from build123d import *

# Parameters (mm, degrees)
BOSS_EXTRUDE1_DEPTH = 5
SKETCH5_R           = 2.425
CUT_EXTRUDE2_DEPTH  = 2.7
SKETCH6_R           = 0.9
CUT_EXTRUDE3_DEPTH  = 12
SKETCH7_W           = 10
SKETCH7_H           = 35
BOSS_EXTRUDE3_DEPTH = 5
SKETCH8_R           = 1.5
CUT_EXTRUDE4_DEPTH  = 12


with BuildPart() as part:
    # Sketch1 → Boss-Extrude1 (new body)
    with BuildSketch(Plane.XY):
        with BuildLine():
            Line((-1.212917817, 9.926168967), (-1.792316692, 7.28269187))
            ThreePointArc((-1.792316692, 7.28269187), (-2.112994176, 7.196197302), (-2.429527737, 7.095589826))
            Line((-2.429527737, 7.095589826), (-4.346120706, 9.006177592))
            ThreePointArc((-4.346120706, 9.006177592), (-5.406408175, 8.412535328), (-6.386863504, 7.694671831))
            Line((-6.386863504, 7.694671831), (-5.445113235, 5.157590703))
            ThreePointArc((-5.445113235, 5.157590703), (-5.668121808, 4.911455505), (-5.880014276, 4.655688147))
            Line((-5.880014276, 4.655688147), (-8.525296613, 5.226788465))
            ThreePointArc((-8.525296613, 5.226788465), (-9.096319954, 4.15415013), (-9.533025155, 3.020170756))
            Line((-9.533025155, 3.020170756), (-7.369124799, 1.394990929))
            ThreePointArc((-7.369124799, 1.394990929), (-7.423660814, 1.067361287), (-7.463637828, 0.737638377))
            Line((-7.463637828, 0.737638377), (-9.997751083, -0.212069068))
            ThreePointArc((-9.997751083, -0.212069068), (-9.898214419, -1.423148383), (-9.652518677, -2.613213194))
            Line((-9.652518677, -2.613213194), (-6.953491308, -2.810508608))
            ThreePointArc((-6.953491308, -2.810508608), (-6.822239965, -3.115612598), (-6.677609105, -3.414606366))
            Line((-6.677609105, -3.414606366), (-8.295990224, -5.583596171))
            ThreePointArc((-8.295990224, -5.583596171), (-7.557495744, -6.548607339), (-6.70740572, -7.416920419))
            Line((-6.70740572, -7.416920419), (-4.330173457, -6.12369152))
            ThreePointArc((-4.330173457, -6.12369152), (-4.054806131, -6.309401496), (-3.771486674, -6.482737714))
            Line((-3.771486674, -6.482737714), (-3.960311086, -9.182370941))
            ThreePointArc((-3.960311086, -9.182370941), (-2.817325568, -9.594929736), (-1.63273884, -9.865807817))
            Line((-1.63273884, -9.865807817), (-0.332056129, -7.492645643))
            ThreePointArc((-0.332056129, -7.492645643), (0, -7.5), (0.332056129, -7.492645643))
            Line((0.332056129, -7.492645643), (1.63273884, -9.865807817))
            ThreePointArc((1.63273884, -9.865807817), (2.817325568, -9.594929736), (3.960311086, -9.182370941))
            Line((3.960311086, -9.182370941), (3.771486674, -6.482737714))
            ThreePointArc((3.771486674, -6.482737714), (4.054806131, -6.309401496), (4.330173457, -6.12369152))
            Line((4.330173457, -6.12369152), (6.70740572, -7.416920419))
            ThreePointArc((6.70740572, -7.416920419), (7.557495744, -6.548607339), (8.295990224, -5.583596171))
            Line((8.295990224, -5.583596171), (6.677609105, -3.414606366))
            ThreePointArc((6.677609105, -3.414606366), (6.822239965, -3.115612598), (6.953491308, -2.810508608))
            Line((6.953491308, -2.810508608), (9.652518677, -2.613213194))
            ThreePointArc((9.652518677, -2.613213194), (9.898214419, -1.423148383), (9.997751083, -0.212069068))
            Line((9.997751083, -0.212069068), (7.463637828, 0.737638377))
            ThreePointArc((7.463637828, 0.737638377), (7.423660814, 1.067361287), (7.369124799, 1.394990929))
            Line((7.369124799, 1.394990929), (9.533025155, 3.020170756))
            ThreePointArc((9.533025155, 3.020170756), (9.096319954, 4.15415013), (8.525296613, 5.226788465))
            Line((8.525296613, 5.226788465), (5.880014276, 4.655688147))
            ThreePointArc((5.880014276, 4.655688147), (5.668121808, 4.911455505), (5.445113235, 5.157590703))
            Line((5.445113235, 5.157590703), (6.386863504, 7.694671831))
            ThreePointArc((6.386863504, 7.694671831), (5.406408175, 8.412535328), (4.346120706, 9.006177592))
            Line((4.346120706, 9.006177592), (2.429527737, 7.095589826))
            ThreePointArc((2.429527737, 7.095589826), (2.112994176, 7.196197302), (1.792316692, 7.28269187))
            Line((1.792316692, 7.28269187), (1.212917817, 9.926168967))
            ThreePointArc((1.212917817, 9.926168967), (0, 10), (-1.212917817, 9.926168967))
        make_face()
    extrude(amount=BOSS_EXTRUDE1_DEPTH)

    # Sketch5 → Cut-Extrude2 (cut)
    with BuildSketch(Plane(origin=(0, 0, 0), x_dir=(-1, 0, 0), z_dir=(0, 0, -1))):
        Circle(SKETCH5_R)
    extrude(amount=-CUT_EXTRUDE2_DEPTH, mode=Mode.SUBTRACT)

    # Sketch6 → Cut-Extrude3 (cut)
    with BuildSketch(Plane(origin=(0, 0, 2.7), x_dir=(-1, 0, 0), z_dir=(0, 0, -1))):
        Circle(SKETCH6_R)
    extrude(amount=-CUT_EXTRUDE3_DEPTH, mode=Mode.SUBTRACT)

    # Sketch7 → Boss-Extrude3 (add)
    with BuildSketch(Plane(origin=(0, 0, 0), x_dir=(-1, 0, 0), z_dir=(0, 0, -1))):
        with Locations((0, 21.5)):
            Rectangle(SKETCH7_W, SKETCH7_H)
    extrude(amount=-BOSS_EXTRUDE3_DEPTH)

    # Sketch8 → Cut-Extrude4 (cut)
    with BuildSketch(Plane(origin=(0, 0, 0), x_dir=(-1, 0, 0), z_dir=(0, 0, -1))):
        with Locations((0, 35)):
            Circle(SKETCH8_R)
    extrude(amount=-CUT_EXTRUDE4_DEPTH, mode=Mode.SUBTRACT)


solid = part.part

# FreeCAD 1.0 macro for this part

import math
import FreeCAD as App
import Part
import Sketcher

V = App.Vector

doc = App.newDocument("Part")
body = doc.addObject("PartDesign::Body", "Body")

# Sketch on XY plane
sketch1 = body.newObject("Sketcher::SketchObject", "Sketch")
sketch1.AttachmentSupport = (doc.getObject("XY_Plane"), [""])
sketch1.MapMode = "FlatFace"
sketch1.addGeometry(Part.LineSegment(V(-1.2, 9.9, 0), V(-1.8, 7.3, 0)), False)
sketch1.addGeometry(Part.ArcOfCircle(Part.Circle(V(0, 0, 0), V(0, 0, 1), 7.5), math.radians(103.83), math.radians(108.9)), False)
sketch1.addGeometry(Part.LineSegment(V(-2.4, 7.1, 0), V(-4.3, 9, 0)), False)
sketch1.addGeometry(Part.ArcOfCircle(Part.Circle(V(0, 0, 0), V(0, 0, 1), 10), math.radians(115.76), math.radians(129.69)), False)
sketch1.addGeometry(Part.LineSegment(V(-6.4, 7.7, 0), V(-5.4, 5.2, 0)), False)
sketch1.addGeometry(Part.ArcOfCircle(Part.Circle(V(0, 0, 0), V(0, 0, 1), 7.5), math.radians(136.55), math.radians(141.63)), False)
sketch1.addGeometry(Part.LineSegment(V(-5.9, 4.7, 0), V(-8.5, 5.2, 0)), False)
sketch1.addGeometry(Part.ArcOfCircle(Part.Circle(V(0, 0, 0), V(0, 0, 1), 10), math.radians(148.49), math.radians(162.42)), False)
sketch1.addGeometry(Part.LineSegment(V(-9.5, 3, 0), V(-7.4, 1.4, 0)), False)
sketch1.addGeometry(Part.ArcOfCircle(Part.Circle(V(0, 0, 0), V(0, 0, 1), 7.5), math.radians(169.28), math.radians(174.36)), False)
sketch1.addGeometry(Part.LineSegment(V(-7.5, 0.7, 0), V(-10, -0.2, 0)), False)
sketch1.addGeometry(Part.ArcOfCircle(Part.Circle(V(0, 0, 0), V(0, 0, 1), 10), math.radians(-178.78), math.radians(-164.85)), False)
sketch1.addGeometry(Part.LineSegment(V(-9.7, -2.6, 0), V(-7, -2.8, 0)), False)
sketch1.addGeometry(Part.ArcOfCircle(Part.Circle(V(0, 0, 0), V(0, 0, 1), 7.5), math.radians(-157.99), math.radians(-152.92)), False)
sketch1.addGeometry(Part.LineSegment(V(-6.7, -3.4, 0), V(-8.3, -5.6, 0)), False)
sketch1.addGeometry(Part.ArcOfCircle(Part.Circle(V(0, 0, 0), V(0, 0, 1), 10), math.radians(-146.06), math.radians(-132.12)), False)
sketch1.addGeometry(Part.LineSegment(V(-6.7, -7.4, 0), V(-4.3, -6.1, 0)), False)
sketch1.addGeometry(Part.ArcOfCircle(Part.Circle(V(0, 0, 0), V(0, 0, 1), 7.5), math.radians(-125.26), math.radians(-120.19)), False)
sketch1.addGeometry(Part.LineSegment(V(-3.8, -6.5, 0), V(-4, -9.2, 0)), False)
sketch1.addGeometry(Part.ArcOfCircle(Part.Circle(V(0, 0, 0), V(0, 0, 1), 10), math.radians(-113.33), math.radians(-99.4)), False)
sketch1.addGeometry(Part.LineSegment(V(-1.6, -9.9, 0), V(-0.3, -7.5, 0)), False)
sketch1.addGeometry(Part.ArcOfCircle(Part.Circle(V(0, 0, 0), V(0, 0, 1), 7.5), math.radians(-92.54), math.radians(-87.46)), False)
sketch1.addGeometry(Part.LineSegment(V(0.3, -7.5, 0), V(1.6, -9.9, 0)), False)
sketch1.addGeometry(Part.ArcOfCircle(Part.Circle(V(0, 0, 0), V(0, 0, 1), 10), math.radians(-80.6), math.radians(-66.67)), False)
sketch1.addGeometry(Part.LineSegment(V(4, -9.2, 0), V(3.8, -6.5, 0)), False)
sketch1.addGeometry(Part.ArcOfCircle(Part.Circle(V(0, 0, 0), V(0, 0, 1), 7.5), math.radians(-59.81), math.radians(-54.74)), False)
sketch1.addGeometry(Part.LineSegment(V(4.3, -6.1, 0), V(6.7, -7.4, 0)), False)
sketch1.addGeometry(Part.ArcOfCircle(Part.Circle(V(0, 0, 0), V(0, 0, 1), 10), math.radians(-47.88), math.radians(-33.94)), False)
sketch1.addGeometry(Part.LineSegment(V(8.3, -5.6, 0), V(6.7, -3.4, 0)), False)
sketch1.addGeometry(Part.ArcOfCircle(Part.Circle(V(0, 0, 0), V(0, 0, 1), 7.5), math.radians(-27.08), math.radians(-22.01)), False)
sketch1.addGeometry(Part.LineSegment(V(7, -2.8, 0), V(9.7, -2.6, 0)), False)
sketch1.addGeometry(Part.ArcOfCircle(Part.Circle(V(0, 0, 0), V(0, 0, 1), 10), math.radians(-15.15), math.radians(-1.22)), False)
sketch1.addGeometry(Part.LineSegment(V(10, -0.2, 0), V(7.5, 0.7, 0)), False)
sketch1.addGeometry(Part.ArcOfCircle(Part.Circle(V(0, 0, 0), V(0, 0, 1), 7.5), math.radians(5.64), math.radians(10.72)), False)
sketch1.addGeometry(Part.LineSegment(V(7.4, 1.4, 0), V(9.5, 3, 0)), False)
sketch1.addGeometry(Part.ArcOfCircle(Part.Circle(V(0, 0, 0), V(0, 0, 1), 10), math.radians(17.58), math.radians(31.51)), False)
sketch1.addGeometry(Part.LineSegment(V(8.5, 5.2, 0), V(5.9, 4.7, 0)), False)
sketch1.addGeometry(Part.ArcOfCircle(Part.Circle(V(0, 0, 0), V(0, 0, 1), 7.5), math.radians(38.37), math.radians(43.45)), False)
sketch1.addGeometry(Part.LineSegment(V(5.4, 5.2, 0), V(6.4, 7.7, 0)), False)
sketch1.addGeometry(Part.ArcOfCircle(Part.Circle(V(0, 0, 0), V(0, 0, 1), 10), math.radians(50.31), math.radians(64.24)), False)
sketch1.addGeometry(Part.LineSegment(V(4.3, 9, 0), V(2.4, 7.1, 0)), False)
sketch1.addGeometry(Part.ArcOfCircle(Part.Circle(V(0, 0, 0), V(0, 0, 1), 7.5), math.radians(71.1), math.radians(76.17)), False)
sketch1.addGeometry(Part.LineSegment(V(1.8, 7.3, 0), V(1.2, 9.9, 0)), False)
sketch1.addGeometry(Part.ArcOfCircle(Part.Circle(V(0, 0, 0), V(0, 0, 1), 10), math.radians(83.03), math.radians(96.97)), False)
sketch1.addConstraint(Sketcher.Constraint("Coincident", 0, 2, 1, 1))
sketch1.addConstraint(Sketcher.Constraint("Coincident", 1, 2, 2, 1))
sketch1.addConstraint(Sketcher.Constraint("Coincident", 2, 2, 3, 1))
sketch1.addConstraint(Sketcher.Constraint("Coincident", 3, 2, 4, 1))
sketch1.addConstraint(Sketcher.Constraint("Coincident", 4, 2, 5, 1))
sketch1.addConstraint(Sketcher.Constraint("Coincident", 5, 2, 6, 1))
sketch1.addConstraint(Sketcher.Constraint("Coincident", 6, 2, 7, 1))
sketch1.addConstraint(Sketcher.Constraint("Coincident", 7, 2, 8, 1))
sketch1.addConstraint(Sketcher.Constraint("Coincident", 8, 2, 9, 1))
sketch1.addConstraint(Sketcher.Constraint("Coincident", 9, 2, 10, 1))
sketch1.addConstraint(Sketcher.Constraint("Coincident", 10, 2, 11, 1))
sketch1.addConstraint(Sketcher.Constraint("Coincident", 11, 2, 12, 1))
sketch1.addConstraint(Sketcher.Constraint("Coincident", 12, 2, 13, 1))
sketch1.addConstraint(Sketcher.Constraint("Coincident", 13, 2, 14, 1))
sketch1.addConstraint(Sketcher.Constraint("Coincident", 14, 2, 15, 1))
sketch1.addConstraint(Sketcher.Constraint("Coincident", 15, 2, 16, 1))
sketch1.addConstraint(Sketcher.Constraint("Coincident", 16, 2, 17, 1))
sketch1.addConstraint(Sketcher.Constraint("Coincident", 17, 2, 18, 1))
sketch1.addConstraint(Sketcher.Constraint("Coincident", 18, 2, 19, 1))
sketch1.addConstraint(Sketcher.Constraint("Coincident", 19, 2, 20, 1))
sketch1.addConstraint(Sketcher.Constraint("Coincident", 20, 2, 21, 1))
sketch1.addConstraint(Sketcher.Constraint("Coincident", 21, 2, 22, 1))
sketch1.addConstraint(Sketcher.Constraint("Coincident", 22, 2, 23, 1))
sketch1.addConstraint(Sketcher.Constraint("Coincident", 23, 2, 24, 1))
sketch1.addConstraint(Sketcher.Constraint("Coincident", 24, 2, 25, 1))
sketch1.addConstraint(Sketcher.Constraint("Coincident", 25, 2, 26, 1))
sketch1.addConstraint(Sketcher.Constraint("Coincident", 26, 2, 27, 1))
sketch1.addConstraint(Sketcher.Constraint("Coincident", 27, 2, 28, 1))
sketch1.addConstraint(Sketcher.Constraint("Coincident", 28, 2, 29, 1))
sketch1.addConstraint(Sketcher.Constraint("Coincident", 29, 2, 30, 1))
sketch1.addConstraint(Sketcher.Constraint("Coincident", 30, 2, 31, 1))
sketch1.addConstraint(Sketcher.Constraint("Coincident", 31, 2, 32, 1))
sketch1.addConstraint(Sketcher.Constraint("Coincident", 32, 2, 33, 1))
sketch1.addConstraint(Sketcher.Constraint("Coincident", 33, 2, 34, 1))
sketch1.addConstraint(Sketcher.Constraint("Coincident", 34, 2, 35, 1))
sketch1.addConstraint(Sketcher.Constraint("Coincident", 35, 2, 36, 1))
sketch1.addConstraint(Sketcher.Constraint("Coincident", 36, 2, 37, 1))
sketch1.addConstraint(Sketcher.Constraint("Coincident", 37, 2, 38, 1))
sketch1.addConstraint(Sketcher.Constraint("Coincident", 38, 2, 39, 1))
sketch1.addConstraint(Sketcher.Constraint("Coincident", 39, 2, 40, 1))
sketch1.addConstraint(Sketcher.Constraint("Coincident", 40, 2, 41, 1))
sketch1.addConstraint(Sketcher.Constraint("Coincident", 41, 2, 42, 1))
sketch1.addConstraint(Sketcher.Constraint("Coincident", 42, 2, 43, 1))
sketch1.addConstraint(Sketcher.Constraint("Coincident", 43, 2, 0, 1))
sketch1.addConstraint(Sketcher.Constraint("Coincident", 1, 3, -1, 1))
sketch1.addConstraint(Sketcher.Constraint("Coincident", 3, 3, -1, 1))
sketch1.addConstraint(Sketcher.Constraint("Coincident", 5, 3, -1, 1))
sketch1.addConstraint(Sketcher.Constraint("Coincident", 7, 3, -1, 1))
sketch1.addConstraint(Sketcher.Constraint("Coincident", 9, 3, -1, 1))
sketch1.addConstraint(Sketcher.Constraint("Coincident", 11, 3, -1, 1))
sketch1.addConstraint(Sketcher.Constraint("Coincident", 13, 3, -1, 1))
sketch1.addConstraint(Sketcher.Constraint("Coincident", 15, 3, -1, 1))
sketch1.addConstraint(Sketcher.Constraint("Coincident", 17, 3, -1, 1))
sketch1.addConstraint(Sketcher.Constraint("Coincident", 19, 3, -1, 1))
sketch1.addConstraint(Sketcher.Constraint("Coincident", 21, 3, -1, 1))
sketch1.addConstraint(Sketcher.Constraint("Coincident", 23, 3, -1, 1))
sketch1.addConstraint(Sketcher.Constraint("Coincident", 25, 3, -1, 1))
sketch1.addConstraint(Sketcher.Constraint("Coincident", 27, 3, -1, 1))
sketch1.addConstraint(Sketcher.Constraint("Coincident", 29, 3, -1, 1))
sketch1.addConstraint(Sketcher.Constraint("Coincident", 31, 3, -1, 1))
sketch1.addConstraint(Sketcher.Constraint("Coincident", 33, 3, -1, 1))
sketch1.addConstraint(Sketcher.Constraint("Coincident", 35, 3, -1, 1))
sketch1.addConstraint(Sketcher.Constraint("Coincident", 37, 3, -1, 1))
sketch1.addConstraint(Sketcher.Constraint("Coincident", 39, 3, -1, 1))
sketch1.addConstraint(Sketcher.Constraint("Coincident", 41, 3, -1, 1))
sketch1.addConstraint(Sketcher.Constraint("Coincident", 43, 3, -1, 1))
sketch1.addConstraint(Sketcher.Constraint("Equal", 1, 5))
sketch1.addConstraint(Sketcher.Constraint("Equal", 3, 7))
sketch1.addConstraint(Sketcher.Constraint("Equal", 5, 9))
sketch1.addConstraint(Sketcher.Constraint("Equal", 7, 11))
sketch1.addConstraint(Sketcher.Constraint("Equal", 9, 13))
sketch1.addConstraint(Sketcher.Constraint("Equal", 11, 15))
sketch1.addConstraint(Sketcher.Constraint("Equal", 13, 17))
sketch1.addConstraint(Sketcher.Constraint("Equal", 15, 19))
sketch1.addConstraint(Sketcher.Constraint("Equal", 17, 21))
sketch1.addConstraint(Sketcher.Constraint("Equal", 19, 23))
sketch1.addConstraint(Sketcher.Constraint("Equal", 21, 25))
sketch1.addConstraint(Sketcher.Constraint("Equal", 23, 27))
sketch1.addConstraint(Sketcher.Constraint("Equal", 25, 29))
sketch1.addConstraint(Sketcher.Constraint("Equal", 27, 31))
sketch1.addConstraint(Sketcher.Constraint("Equal", 29, 33))
sketch1.addConstraint(Sketcher.Constraint("Equal", 31, 35))
sketch1.addConstraint(Sketcher.Constraint("Equal", 33, 37))
sketch1.addConstraint(Sketcher.Constraint("Equal", 35, 39))
sketch1.addConstraint(Sketcher.Constraint("Equal", 37, 41))
sketch1.addConstraint(Sketcher.Constraint("Equal", 39, 43))
sketch1.addConstraint(Sketcher.Constraint("Horizontal", 20, 2, 21, 2))
sketch1.addConstraint(Sketcher.Constraint("Horizontal", 19, 2, 22, 2))
sketch1.addConstraint(Sketcher.Constraint("Horizontal", 18, 2, 23, 2))
sketch1.addConstraint(Sketcher.Constraint("Horizontal", 17, 2, 24, 2))
sketch1.addConstraint(Sketcher.Constraint("Horizontal", 16, 2, 25, 2))
sketch1.addConstraint(Sketcher.Constraint("Horizontal", 15, 2, 26, 2))
sketch1.addConstraint(Sketcher.Constraint("Horizontal", 14, 2, 27, 2))
sketch1.addConstraint(Sketcher.Constraint("Horizontal", 13, 2, 28, 2))
sketch1.addConstraint(Sketcher.Constraint("Horizontal", 12, 2, 29, 2))
sketch1.addConstraint(Sketcher.Constraint("Horizontal", 11, 2, 30, 2))
sketch1.addConstraint(Sketcher.Constraint("Horizontal", 10, 2, 31, 2))
sketch1.addConstraint(Sketcher.Constraint("Horizontal", 9, 2, 32, 2))
sketch1.addConstraint(Sketcher.Constraint("Horizontal", 8, 2, 33, 2))
sketch1.addConstraint(Sketcher.Constraint("Horizontal", 7, 2, 34, 2))
sketch1.addConstraint(Sketcher.Constraint("Horizontal", 6, 2, 35, 2))
sketch1.addConstraint(Sketcher.Constraint("Horizontal", 5, 2, 36, 2))
sketch1.addConstraint(Sketcher.Constraint("Horizontal", 4, 2, 37, 2))
sketch1.addConstraint(Sketcher.Constraint("Horizontal", 3, 2, 38, 2))
sketch1.addConstraint(Sketcher.Constraint("Horizontal", 2, 2, 39, 2))
sketch1.addConstraint(Sketcher.Constraint("Horizontal", 1, 2, 40, 2))
sketch1.addConstraint(Sketcher.Constraint("Horizontal", 0, 2, 41, 2))
sketch1.addConstraint(Sketcher.Constraint("Horizontal", 42, 2, 43, 2))
sketch1.addConstraint(Sketcher.Constraint("Equal", 0, 2))
sketch1.addConstraint(Sketcher.Constraint("Equal", 2, 4))
sketch1.addConstraint(Sketcher.Constraint("Equal", 4, 6))
sketch1.addConstraint(Sketcher.Constraint("Equal", 6, 8))
sketch1.addConstraint(Sketcher.Constraint("Equal", 8, 10))
sketch1.addConstraint(Sketcher.Constraint("Equal", 10, 12))
sketch1.addConstraint(Sketcher.Constraint("Equal", 12, 14))
sketch1.addConstraint(Sketcher.Constraint("Equal", 14, 16))
sketch1.addConstraint(Sketcher.Constraint("Equal", 16, 18))
sketch1.addConstraint(Sketcher.Constraint("Equal", 18, 20))
sketch1.addConstraint(Sketcher.Constraint("Radius", 3, 10.0))
sketch1.addConstraint(Sketcher.Constraint("Radius", 1, 7.5))
sketch1.addConstraint(Sketcher.Constraint("Distance", 0, 2.706229))
sketch1.addConstraint(Sketcher.Constraint("DistanceY", -1, 1, 0, 2, 7.282692))
sketch1.addConstraint(Sketcher.Constraint("DistanceY", -1, 1, 1, 2, 7.09559))
sketch1.addConstraint(Sketcher.Constraint("DistanceY", -1, 1, 3, 2, 7.694672))
sketch1.addConstraint(Sketcher.Constraint("DistanceY", -1, 1, 5, 2, 4.655688))
sketch1.addConstraint(Sketcher.Constraint("DistanceY", -1, 1, 7, 2, 3.020171))
sketch1.addConstraint(Sketcher.Constraint("DistanceY", -1, 1, 9, 2, 0.737638))
sketch1.addConstraint(Sketcher.Constraint("DistanceX", 11, 2, -1, 1, 9.652519))
sketch1.addConstraint(Sketcher.Constraint("DistanceX", 13, 2, -1, 1, 6.677609))
sketch1.addConstraint(Sketcher.Constraint("DistanceY", 15, 2, -1, 1, 7.41692))
sketch1.addConstraint(Sketcher.Constraint("DistanceX", 18, 2, -1, 1, 3.960311))
sketch1.addConstraint(Sketcher.Constraint("DistanceX", 19, 2, -1, 1, 1.632739))
pad1 = body.newObject("PartDesign::Pad", "Pad")
pad1.Profile = sketch1
pad1.Length = 5

# Sketch on XY plane
sketch2 = body.newObject("Sketcher::SketchObject", "Sketch001")
sketch2.AttachmentSupport = (doc.getObject("XY_Plane"), [""])
sketch2.MapMode = "FlatFace"
sketch2.addGeometry(Part.Circle(V(0, 0, 0), V(0, 0, 1), 2.4), False)
sketch2.addConstraint(Sketcher.Constraint("Coincident", 0, 3, -1, 1))
sketch2.addConstraint(Sketcher.Constraint("Diameter", 0, 4.85))
pocket1 = body.newObject("PartDesign::Pocket", "Pocket")
pocket1.Profile = sketch2
pocket1.Length = 2.7
pocket1.Reversed = True

# Sketch on XY plane
sketch3 = body.newObject("Sketcher::SketchObject", "Sketch002")
sketch3.AttachmentSupport = (doc.getObject("XY_Plane"), [""])
sketch3.MapMode = "FlatFace"
sketch3.AttachmentOffset = App.Placement(V(0, 0, 2.7), App.Rotation())
sketch3.addGeometry(Part.Circle(V(0, 0, 0), V(0, 0, 1), 0.9), False)
sketch3.addConstraint(Sketcher.Constraint("Coincident", 0, 3, -1, 1))
sketch3.addConstraint(Sketcher.Constraint("Diameter", 0, 1.8))
pocket2 = body.newObject("PartDesign::Pocket", "Pocket001")
pocket2.Profile = sketch3
pocket2.Length = 12
pocket2.Reversed = True

# Sketch on XY plane
sketch4 = body.newObject("Sketcher::SketchObject", "Sketch003")
sketch4.AttachmentSupport = (doc.getObject("XY_Plane"), [""])
sketch4.MapMode = "FlatFace"
sketch4.addGeometry(Part.LineSegment(V(5, 39, 0), V(5, 4, 0)), False)
sketch4.addGeometry(Part.LineSegment(V(5, 4, 0), V(-5, 4, 0)), False)
sketch4.addGeometry(Part.LineSegment(V(-5, 4, 0), V(-5, 39, 0)), False)
sketch4.addGeometry(Part.LineSegment(V(-5, 39, 0), V(5, 39, 0)), False)
sketch4.addConstraint(Sketcher.Constraint("Coincident", 0, 2, 1, 1))
sketch4.addConstraint(Sketcher.Constraint("Coincident", 1, 2, 2, 1))
sketch4.addConstraint(Sketcher.Constraint("Coincident", 2, 2, 3, 1))
sketch4.addConstraint(Sketcher.Constraint("Coincident", 3, 2, 0, 1))
sketch4.addConstraint(Sketcher.Constraint("Vertical", 0))
sketch4.addConstraint(Sketcher.Constraint("Horizontal", 1))
sketch4.addConstraint(Sketcher.Constraint("Vertical", 2))
sketch4.addConstraint(Sketcher.Constraint("Horizontal", 3))
sketch4.addConstraint(Sketcher.Constraint("DistanceX", 1, 2, 1, 1, 10.0))
sketch4.addConstraint(Sketcher.Constraint("DistanceY", 0, 2, 0, 1, 35.0))
sketch4.addConstraint(Sketcher.Constraint("DistanceX", -1, 1, 0, 2, 5.0))
sketch4.addConstraint(Sketcher.Constraint("DistanceY", -1, 1, 0, 2, 4.0))
pad2 = body.newObject("PartDesign::Pad", "Pad001")
pad2.Profile = sketch4
pad2.Length = 5

# Sketch on XY plane
sketch5 = body.newObject("Sketcher::SketchObject", "Sketch004")
sketch5.AttachmentSupport = (doc.getObject("XY_Plane"), [""])
sketch5.MapMode = "FlatFace"
sketch5.addGeometry(Part.Circle(V(0, 35, 0), V(0, 0, 1), 1.5), False)
sketch5.addConstraint(Sketcher.Constraint("PointOnObject", 0, 3, -2))
sketch5.addConstraint(Sketcher.Constraint("Diameter", 0, 3.0))
sketch5.addConstraint(Sketcher.Constraint("DistanceY", -1, 1, 0, 3, 35.0))
pocket3 = body.newObject("PartDesign::Pocket", "Pocket002")
pocket3.Profile = sketch5
pocket3.Length = 12
pocket3.Reversed = True

doc.recompute()
